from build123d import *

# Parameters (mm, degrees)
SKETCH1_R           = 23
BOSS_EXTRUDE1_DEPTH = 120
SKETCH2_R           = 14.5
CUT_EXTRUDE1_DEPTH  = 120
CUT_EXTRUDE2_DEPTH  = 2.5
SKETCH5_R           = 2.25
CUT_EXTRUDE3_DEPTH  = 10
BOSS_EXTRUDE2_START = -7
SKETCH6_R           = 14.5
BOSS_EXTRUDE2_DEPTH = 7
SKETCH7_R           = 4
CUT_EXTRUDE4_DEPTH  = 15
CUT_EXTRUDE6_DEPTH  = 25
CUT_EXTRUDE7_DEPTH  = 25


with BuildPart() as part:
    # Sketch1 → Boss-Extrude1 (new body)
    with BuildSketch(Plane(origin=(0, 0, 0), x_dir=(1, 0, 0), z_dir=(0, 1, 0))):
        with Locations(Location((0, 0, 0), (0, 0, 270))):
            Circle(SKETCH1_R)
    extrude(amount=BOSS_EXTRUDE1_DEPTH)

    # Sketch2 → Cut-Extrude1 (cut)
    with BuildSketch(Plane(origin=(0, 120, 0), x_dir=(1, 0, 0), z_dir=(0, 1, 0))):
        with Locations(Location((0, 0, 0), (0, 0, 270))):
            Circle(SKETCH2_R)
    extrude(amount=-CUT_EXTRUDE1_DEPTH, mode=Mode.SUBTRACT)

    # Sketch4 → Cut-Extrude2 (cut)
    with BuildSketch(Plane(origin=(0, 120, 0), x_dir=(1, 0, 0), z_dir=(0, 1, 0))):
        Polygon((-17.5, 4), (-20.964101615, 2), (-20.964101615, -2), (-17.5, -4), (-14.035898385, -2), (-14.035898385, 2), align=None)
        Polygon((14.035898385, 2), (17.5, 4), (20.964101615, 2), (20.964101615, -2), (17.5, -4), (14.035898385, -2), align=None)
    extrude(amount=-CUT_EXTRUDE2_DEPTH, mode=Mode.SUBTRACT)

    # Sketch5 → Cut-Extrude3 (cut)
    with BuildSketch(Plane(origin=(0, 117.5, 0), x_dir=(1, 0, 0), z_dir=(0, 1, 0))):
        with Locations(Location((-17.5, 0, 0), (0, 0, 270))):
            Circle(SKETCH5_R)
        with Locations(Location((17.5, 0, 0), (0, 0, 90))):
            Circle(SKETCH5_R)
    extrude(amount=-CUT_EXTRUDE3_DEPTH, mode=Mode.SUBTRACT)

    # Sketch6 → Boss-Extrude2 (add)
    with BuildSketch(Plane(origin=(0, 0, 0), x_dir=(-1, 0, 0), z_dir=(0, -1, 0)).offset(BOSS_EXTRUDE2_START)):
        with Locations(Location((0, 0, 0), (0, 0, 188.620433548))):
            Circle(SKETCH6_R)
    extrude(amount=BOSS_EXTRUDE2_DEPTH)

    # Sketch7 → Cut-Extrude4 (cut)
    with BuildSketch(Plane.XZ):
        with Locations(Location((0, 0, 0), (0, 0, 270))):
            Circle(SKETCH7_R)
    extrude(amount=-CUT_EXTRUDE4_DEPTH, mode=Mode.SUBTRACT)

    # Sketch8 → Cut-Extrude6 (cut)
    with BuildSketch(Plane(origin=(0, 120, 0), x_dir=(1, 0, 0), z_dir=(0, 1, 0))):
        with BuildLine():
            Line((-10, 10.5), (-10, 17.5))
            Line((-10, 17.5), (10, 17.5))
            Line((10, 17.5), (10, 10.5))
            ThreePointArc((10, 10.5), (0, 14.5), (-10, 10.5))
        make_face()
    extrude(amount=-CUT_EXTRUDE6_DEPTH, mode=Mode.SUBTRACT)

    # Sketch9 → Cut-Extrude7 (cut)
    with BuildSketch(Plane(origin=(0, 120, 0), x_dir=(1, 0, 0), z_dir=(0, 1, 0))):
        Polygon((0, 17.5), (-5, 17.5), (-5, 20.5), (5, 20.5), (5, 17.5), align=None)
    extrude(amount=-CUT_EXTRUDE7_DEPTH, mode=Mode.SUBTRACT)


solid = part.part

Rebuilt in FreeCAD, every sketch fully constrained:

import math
import FreeCAD as App
import Part
import Sketcher

V = App.Vector
Q = App.Units.Quantity


def add_polygon(sketch, points):
    """Adds a closed chain of lines whose ends are joined by coincident constraints."""
    first, n = sketch.GeometryCount, len(points)
    for a, b in zip(points, points[1:] + points[:1]):
        sketch.addGeometry(Part.LineSegment(App.Vector(*a, 0), App.Vector(*b, 0)), False)
    for i in range(n):
        sketch.addConstraint(Sketcher.Constraint("Coincident", first + i, 2, first + (i + 1) % n, 1))

doc = App.newDocument("Part")
body = doc.addObject("PartDesign::Body", "Body")

sketch1 = body.newObject("Sketcher::SketchObject", "Sketch")
sketch1.AttachmentSupport = (doc.getObject("XZ_Plane"), [""])
sketch1.MapMode = "FlatFace"
sketch1.addGeometry(Part.Circle(V(0, 0, 0), V(0, 0, 1), 23), False)
sketch1.addConstraint(Sketcher.Constraint("Coincident", 0, 3, -1, 1))
sketch1.addConstraint(Sketcher.Constraint("Diameter", 0, Q("46 mm")))
pad1 = body.newObject("PartDesign::Pad", "Pad")
pad1.Profile = sketch1
pad1.Length = 120
pad1.Reversed = True

sketch2 = body.newObject("Sketcher::SketchObject", "Sketch001")
sketch2.AttachmentSupport = (doc.getObject("XZ_Plane"), [""])
sketch2.MapMode = "FlatFace"
sketch2.AttachmentOffset = App.Placement(V(0, 0, -120), App.Rotation())
sketch2.addGeometry(Part.Circle(V(0, 0, 0), V(0, 0, 1), 14.5), False)
sketch2.addConstraint(Sketcher.Constraint("Coincident", 0, 3, -1, 1))
sketch2.addConstraint(Sketcher.Constraint("Diameter", 0, Q("29 mm")))
pocket1 = body.newObject("PartDesign::Pocket", "Pocket")
pocket1.Profile = sketch2
pocket1.Length = 120
pocket1.Reversed = True

sketch3 = body.newObject("Sketcher::SketchObject", "Sketch002")
sketch3.AttachmentSupport = (doc.getObject("XZ_Plane"), [""])
sketch3.MapMode = "FlatFace"
sketch3.AttachmentOffset = App.Placement(V(0, 0, -120), App.Rotation())
add_polygon(sketch3, [(-17.5, -4), (-20.964102, -2), (-20.964102, 2), (-17.5, 4), (-14.035898, 2), (-14.035898, -2)])
add_polygon(sketch3, [(17.5, -4), (14.035898, -2), (14.035898, 2), (17.5, 4), (20.964102, 2), (20.964102, -2)])
sketch3.addConstraint(Sketcher.Constraint("Vertical", 1))
sketch3.addConstraint(Sketcher.Constraint("Vertical", 4))
sketch3.addConstraint(Sketcher.Constraint("Vertical", 7))
sketch3.addConstraint(Sketcher.Constraint("Vertical", 10))
sketch3.addConstraint(Sketcher.Constraint("Symmetric", 3, 2, 6, 2, -1, 1))
sketch3.addConstraint(Sketcher.Constraint("Symmetric", 5, 2, 8, 2, -1, 1))
sketch3.addConstraint(Sketcher.Constraint("Symmetric", 0, 2, 9, 2, -1, 1))
sketch3.addConstraint(Sketcher.Constraint("Symmetric", 2, 2, 11, 2, -1, 1))
sketch3.addConstraint(Sketcher.Constraint("Symmetric", 2, 2, 8, 2, -2))
sketch3.addConstraint(Sketcher.Constraint("Parallel", 0, 3))
sketch3.addConstraint(Sketcher.Constraint("Parallel", 2, 5))
sketch3.addConstraint(Sketcher.Constraint("Parallel", 5, 8))
sketch3.addConstraint(Sketcher.Constraint("Parallel", 8, 11))
sketch3.addConstraint(Sketcher.Constraint("Horizontal", 1, 2, 3, 2))
sketch3.addConstraint(Sketcher.Constraint("Horizontal", 0, 2, 4, 2))
sketch3.addConstraint(Sketcher.Constraint("DistanceY", 1, 1, 1, 2, Q("4 mm")))
sketch3.addConstraint(Sketcher.Constraint("Angle", 0, Q("150 deg")))
sketch3.addConstraint(Sketcher.Constraint("Distance", 0, Q("4 mm")))
sketch3.addConstraint(Sketcher.Constraint("DistanceX", 0, 2, 6, 2, Q("35 mm")))
pocket2 = body.newObject("PartDesign::Pocket", "Pocket001")
pocket2.Profile = sketch3
pocket2.Length = 2.5
pocket2.Reversed = True

sketch4 = body.newObject("Sketcher::SketchObject", "Sketch003")
sketch4.AttachmentSupport = (doc.getObject("XZ_Plane"), [""])
sketch4.MapMode = "FlatFace"
sketch4.AttachmentOffset = App.Placement(V(0, 0, -117.5), App.Rotation())
sketch4.addGeometry(Part.Circle(V(-17.5, 0, 0), V(0, 0, 1), 2.25), False)
sketch4.addGeometry(Part.Circle(V(17.5, 0, 0), V(0, 0, 1), 2.25), False)
sketch4.addConstraint(Sketcher.Constraint("Equal", 0, 1))
sketch4.addConstraint(Sketcher.Constraint("Symmetric", 0, 3, 1, 3, -1, 1))
sketch4.addConstraint(Sketcher.Constraint("PointOnObject", 0, 3, -1))
sketch4.addConstraint(Sketcher.Constraint("Diameter", 0, Q("4.5 mm")))
sketch4.addConstraint(Sketcher.Constraint("DistanceX", 0, 3, 1, 3, Q("35 mm")))
pocket3 = body.newObject("PartDesign::Pocket", "Pocket002")
pocket3.Profile = sketch4
pocket3.Length = 10
pocket3.Reversed = True

sketch5 = body.newObject("Sketcher::SketchObject", "Sketch004")
sketch5.AttachmentSupport = (doc.getObject("XZ_Plane"), [""])
sketch5.MapMode = "FlatFace"
sketch5.AttachmentOffset = App.Placement(V(0, 0, -7), App.Rotation())
sketch5.addGeometry(Part.Circle(V(0, 0, 0), V(0, 0, 1), 14.5), False)
sketch5.addConstraint(Sketcher.Constraint("Coincident", 0, 3, -1, 1))
sketch5.addConstraint(Sketcher.Constraint("Diameter", 0, Q("29 mm")))
pad2 = body.newObject("PartDesign::Pad", "Pad001")
pad2.Profile = sketch5
pad2.Length = 7

sketch6 = body.newObject("Sketcher::SketchObject", "Sketch005")
sketch6.AttachmentSupport = (doc.getObject("XZ_Plane"), [""])
sketch6.MapMode = "FlatFace"
sketch6.addGeometry(Part.Circle(V(0, 0, 0), V(0, 0, 1), 4), False)
sketch6.addConstraint(Sketcher.Constraint("Coincident", 0, 3, -1, 1))
sketch6.addConstraint(Sketcher.Constraint("Diameter", 0, Q("8 mm")))
pocket4 = body.newObject("PartDesign::Pocket", "Pocket003")
pocket4.Profile = sketch6
pocket4.Length = 15

sketch7 = body.newObject("Sketcher::SketchObject", "Sketch006")
sketch7.AttachmentSupport = (doc.getObject("XZ_Plane"), [""])
sketch7.MapMode = "FlatFace"
sketch7.AttachmentOffset = App.Placement(V(0, 0, -120), App.Rotation())
sketch7.addGeometry(Part.LineSegment(V(-10, -17.5, 0), V(-10, -10.5, 0)), False)
sketch7.addGeometry(Part.ArcOfCircle(Part.Circle(V(0, 0, 0), V(0, 0, 1), 14.5), math.radians(-133.602819), math.radians(-46.397181)), False)
sketch7.addGeometry(Part.LineSegment(V(10, -10.5, 0), V(10, -17.5, 0)), False)
sketch7.addGeometry(Part.LineSegment(V(10, -17.5, 0), V(-10, -17.5, 0)), False)
sketch7.addConstraint(Sketcher.Constraint("Coincident", 0, 2, 1, 1))
sketch7.addConstraint(Sketcher.Constraint("Coincident", 1, 2, 2, 1))
sketch7.addConstraint(Sketcher.Constraint("Coincident", 2, 2, 3, 1))
sketch7.addConstraint(Sketcher.Constraint("Coincident", 3, 2, 0, 1))
sketch7.addConstraint(Sketcher.Constraint("Vertical", 0))
sketch7.addConstraint(Sketcher.Constraint("Vertical", 2))
sketch7.addConstraint(Sketcher.Constraint("Horizontal", 3))
sketch7.addConstraint(Sketcher.Constraint("Coincident", 1, 3, -1, 1))
sketch7.addConstraint(Sketcher.Constraint("Horizontal", 0, 2, 1, 2))
sketch7.addConstraint(Sketcher.Constraint("Radius", 1, Q("14.5 mm")))
sketch7.addConstraint(Sketcher.Constraint("DistanceX", 3, 2, 3, 1, Q("20 mm")))
sketch7.addConstraint(Sketcher.Constraint("DistanceY", 0, 1, 0, 2, Q("7 mm")))
pocket5 = body.newObject("PartDesign::Pocket", "Pocket004")
pocket5.Profile = sketch7
pocket5.Length = 25
pocket5.Reversed = True

sketch8 = body.newObject("Sketcher::SketchObject", "Sketch007")
sketch8.AttachmentSupport = (doc.getObject("XZ_Plane"), [""])
sketch8.MapMode = "FlatFace"
sketch8.AttachmentOffset = App.Placement(V(0, 0, -120), App.Rotation())
add_polygon(sketch8, [(-5, -17.5), (5, -17.5), (5, -20.5), (-5, -20.5)])
sketch8.addConstraint(Sketcher.Constraint("Horizontal", 0))
sketch8.addConstraint(Sketcher.Constraint("Vertical", 1))
sketch8.addConstraint(Sketcher.Constraint("Horizontal", 2))
sketch8.addConstraint(Sketcher.Constraint("Vertical", 3))
sketch8.addConstraint(Sketcher.Constraint("DistanceX", 0, 1, 0, 2, Q("10 mm")))
sketch8.addConstraint(Sketcher.Constraint("DistanceY", 1, 2, 1, 1, Q("3 mm")))
sketch8.addConstraint(Sketcher.Constraint("DistanceX", -1, 1, 0, 2, Q("5 mm")))
sketch8.addConstraint(Sketcher.Constraint("DistanceY", 0, 2, -1, 1, Q("17.5 mm")))
pocket6 = body.newObject("PartDesign::Pocket", "Pocket005")
pocket6.Profile = sketch8
pocket6.Length = 25
pocket6.Reversed = True

doc.recompute()
